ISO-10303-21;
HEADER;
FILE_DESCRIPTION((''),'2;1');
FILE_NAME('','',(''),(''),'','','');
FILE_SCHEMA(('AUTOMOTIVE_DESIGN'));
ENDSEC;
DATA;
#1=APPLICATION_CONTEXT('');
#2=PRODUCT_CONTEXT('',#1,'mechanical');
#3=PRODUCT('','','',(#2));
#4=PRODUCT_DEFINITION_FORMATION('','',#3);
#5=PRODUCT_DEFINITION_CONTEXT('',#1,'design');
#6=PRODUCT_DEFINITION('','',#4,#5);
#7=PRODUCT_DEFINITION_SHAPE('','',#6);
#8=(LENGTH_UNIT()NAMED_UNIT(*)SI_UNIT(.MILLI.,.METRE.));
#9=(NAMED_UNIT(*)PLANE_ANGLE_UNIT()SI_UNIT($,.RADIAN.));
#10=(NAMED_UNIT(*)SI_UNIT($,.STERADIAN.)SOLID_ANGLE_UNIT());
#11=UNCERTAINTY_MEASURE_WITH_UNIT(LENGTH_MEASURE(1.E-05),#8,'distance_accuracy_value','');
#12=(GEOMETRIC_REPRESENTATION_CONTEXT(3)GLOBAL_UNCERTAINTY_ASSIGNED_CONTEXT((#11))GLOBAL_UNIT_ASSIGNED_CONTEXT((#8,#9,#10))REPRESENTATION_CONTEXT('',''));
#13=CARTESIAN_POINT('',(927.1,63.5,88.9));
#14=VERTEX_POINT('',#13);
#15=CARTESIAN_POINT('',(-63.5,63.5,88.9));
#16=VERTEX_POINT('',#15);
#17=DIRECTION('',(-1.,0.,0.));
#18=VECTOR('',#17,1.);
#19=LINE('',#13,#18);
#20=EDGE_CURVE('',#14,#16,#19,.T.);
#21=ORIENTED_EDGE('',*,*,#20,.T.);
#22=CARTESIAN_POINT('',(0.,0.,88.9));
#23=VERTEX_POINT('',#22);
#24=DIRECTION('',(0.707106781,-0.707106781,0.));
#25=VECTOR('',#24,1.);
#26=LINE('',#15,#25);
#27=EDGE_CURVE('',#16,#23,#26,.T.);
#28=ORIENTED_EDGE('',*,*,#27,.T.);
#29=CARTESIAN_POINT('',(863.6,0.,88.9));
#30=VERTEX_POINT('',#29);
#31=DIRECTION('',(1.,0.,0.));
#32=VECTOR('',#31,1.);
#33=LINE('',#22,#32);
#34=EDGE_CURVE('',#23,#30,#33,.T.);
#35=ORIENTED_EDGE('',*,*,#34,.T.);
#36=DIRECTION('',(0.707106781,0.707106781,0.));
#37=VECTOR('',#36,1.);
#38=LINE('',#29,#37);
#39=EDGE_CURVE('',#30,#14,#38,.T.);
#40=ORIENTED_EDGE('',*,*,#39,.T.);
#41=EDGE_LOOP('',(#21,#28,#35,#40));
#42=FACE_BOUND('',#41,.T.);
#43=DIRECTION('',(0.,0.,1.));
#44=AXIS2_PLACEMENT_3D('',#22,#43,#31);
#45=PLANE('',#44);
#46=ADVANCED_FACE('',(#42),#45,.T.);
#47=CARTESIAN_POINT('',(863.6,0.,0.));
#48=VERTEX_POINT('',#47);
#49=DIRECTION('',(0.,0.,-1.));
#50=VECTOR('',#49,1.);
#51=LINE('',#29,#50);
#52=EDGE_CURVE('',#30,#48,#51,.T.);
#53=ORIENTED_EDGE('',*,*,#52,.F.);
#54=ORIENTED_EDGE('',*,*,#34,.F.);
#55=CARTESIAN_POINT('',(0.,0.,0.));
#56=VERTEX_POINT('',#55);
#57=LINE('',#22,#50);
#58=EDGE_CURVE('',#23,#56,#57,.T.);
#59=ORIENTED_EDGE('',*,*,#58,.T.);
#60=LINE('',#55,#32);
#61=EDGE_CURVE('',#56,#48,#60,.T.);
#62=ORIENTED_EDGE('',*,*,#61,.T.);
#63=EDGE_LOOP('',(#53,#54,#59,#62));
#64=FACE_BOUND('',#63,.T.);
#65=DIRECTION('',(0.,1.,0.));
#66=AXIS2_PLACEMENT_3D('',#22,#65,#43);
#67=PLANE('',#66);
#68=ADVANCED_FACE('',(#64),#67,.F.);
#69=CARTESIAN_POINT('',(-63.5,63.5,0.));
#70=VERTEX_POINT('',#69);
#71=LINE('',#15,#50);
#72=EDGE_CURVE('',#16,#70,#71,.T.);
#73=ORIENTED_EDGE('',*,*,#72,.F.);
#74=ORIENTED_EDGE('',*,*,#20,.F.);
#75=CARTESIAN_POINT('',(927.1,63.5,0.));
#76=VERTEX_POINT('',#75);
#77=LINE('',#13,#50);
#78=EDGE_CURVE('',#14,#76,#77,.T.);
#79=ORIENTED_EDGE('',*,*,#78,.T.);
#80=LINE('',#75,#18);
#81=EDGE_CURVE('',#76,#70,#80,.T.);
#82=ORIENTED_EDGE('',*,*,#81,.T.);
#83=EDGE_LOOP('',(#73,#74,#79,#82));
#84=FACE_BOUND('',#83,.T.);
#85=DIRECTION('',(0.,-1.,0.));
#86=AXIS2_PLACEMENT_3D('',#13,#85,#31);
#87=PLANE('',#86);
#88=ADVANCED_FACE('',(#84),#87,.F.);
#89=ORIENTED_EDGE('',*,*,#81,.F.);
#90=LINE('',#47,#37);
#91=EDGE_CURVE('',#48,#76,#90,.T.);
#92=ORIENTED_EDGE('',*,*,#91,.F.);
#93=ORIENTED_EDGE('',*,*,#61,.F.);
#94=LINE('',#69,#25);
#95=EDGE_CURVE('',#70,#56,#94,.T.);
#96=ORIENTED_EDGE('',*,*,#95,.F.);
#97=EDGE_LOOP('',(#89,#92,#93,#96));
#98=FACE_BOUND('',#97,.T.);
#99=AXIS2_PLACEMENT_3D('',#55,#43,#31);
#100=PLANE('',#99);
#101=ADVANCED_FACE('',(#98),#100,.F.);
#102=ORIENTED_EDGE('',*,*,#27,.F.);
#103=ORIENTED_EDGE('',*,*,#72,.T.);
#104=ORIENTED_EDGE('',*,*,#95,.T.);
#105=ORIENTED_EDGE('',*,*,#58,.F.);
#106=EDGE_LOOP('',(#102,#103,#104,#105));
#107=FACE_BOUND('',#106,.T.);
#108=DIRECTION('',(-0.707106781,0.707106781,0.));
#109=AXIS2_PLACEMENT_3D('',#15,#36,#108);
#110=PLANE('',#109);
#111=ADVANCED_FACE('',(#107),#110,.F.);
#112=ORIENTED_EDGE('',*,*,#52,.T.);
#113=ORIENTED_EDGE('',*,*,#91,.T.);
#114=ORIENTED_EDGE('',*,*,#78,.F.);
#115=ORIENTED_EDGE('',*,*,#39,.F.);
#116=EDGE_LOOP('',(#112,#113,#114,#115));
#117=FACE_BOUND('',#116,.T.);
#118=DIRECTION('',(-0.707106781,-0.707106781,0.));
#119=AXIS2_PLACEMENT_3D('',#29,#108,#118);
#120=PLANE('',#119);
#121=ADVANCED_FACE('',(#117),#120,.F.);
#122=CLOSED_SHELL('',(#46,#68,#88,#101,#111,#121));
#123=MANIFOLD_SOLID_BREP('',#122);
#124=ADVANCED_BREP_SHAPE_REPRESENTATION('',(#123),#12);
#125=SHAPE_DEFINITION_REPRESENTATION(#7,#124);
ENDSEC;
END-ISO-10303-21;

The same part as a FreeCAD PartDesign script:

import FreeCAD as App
import Part
import Sketcher
Q = App.Units.Quantity


def add_polygon(sketch, points):
    """Adds a closed chain of lines whose ends are joined by coincident constraints."""
    first, n = sketch.GeometryCount, len(points)
    for a, b in zip(points, points[1:] + points[:1]):
        sketch.addGeometry(Part.LineSegment(App.Vector(*a, 0), App.Vector(*b, 0)), False)
    for i in range(n):
        sketch.addConstraint(Sketcher.Constraint("Coincident", first + i, 2, first + (i + 1) % n, 1))

doc = App.newDocument("Part")
body = doc.addObject("PartDesign::Body", "Body")

# Sketch on XY plane
sketch1 = body.newObject("Sketcher::SketchObject", "Sketch")
sketch1.AttachmentSupport = (doc.getObject("XY_Plane"), [""])
sketch1.MapMode = "FlatFace"
add_polygon(sketch1, [(0, 0), (864, 0), (927, 64), (-64, 64)])  # lines 0-3
sketch1.addConstraint([
    Sketcher.Constraint("Horizontal", 0),
    Sketcher.Constraint("Horizontal", 2),
    Sketcher.Constraint("Coincident", 3, 2, -1, 1),
    Sketcher.Constraint("Perpendicular", 1, 3),
    Sketcher.Constraint("Equal", 1, 3),
    Sketcher.Constraint("DistanceX", 0, 1, 0, 2, Q("34 in")),
    Sketcher.Constraint("DistanceX", 2, 2, 2, 1, Q("39 in")),
])
pad1 = body.newObject("PartDesign::Pad", "Pad")
pad1.Profile = sketch1
pad1.Length = Q("3.5 in")

doc.recompute()
